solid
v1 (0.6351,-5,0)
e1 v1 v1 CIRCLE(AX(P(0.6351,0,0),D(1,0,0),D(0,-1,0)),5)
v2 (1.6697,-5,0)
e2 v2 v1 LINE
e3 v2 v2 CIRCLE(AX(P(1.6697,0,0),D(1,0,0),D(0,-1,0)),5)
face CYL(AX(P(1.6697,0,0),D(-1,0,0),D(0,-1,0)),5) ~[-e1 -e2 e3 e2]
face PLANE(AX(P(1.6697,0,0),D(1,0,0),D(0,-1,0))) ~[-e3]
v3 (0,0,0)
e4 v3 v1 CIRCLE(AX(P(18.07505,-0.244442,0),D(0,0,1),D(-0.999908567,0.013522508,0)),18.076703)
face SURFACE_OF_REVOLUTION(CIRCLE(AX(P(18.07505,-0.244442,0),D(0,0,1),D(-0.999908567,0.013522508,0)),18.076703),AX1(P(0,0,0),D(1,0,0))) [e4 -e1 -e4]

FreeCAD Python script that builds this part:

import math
import FreeCAD as App
import Part
import Sketcher

doc = App.newDocument("Part")
body = doc.addObject("PartDesign::Body", "Body")

sketch1 = doc.addObject("Sketcher::SketchObject", "Sketch")
body.addObject(sketch1)
sketch1.AttachmentSupport = (doc.XY_Plane, [""])
sketch1.MapMode = "FlatFace"
sketch1.addGeometry([
    Part.LineSegment(App.Vector(1.7, 0, 0), App.Vector(0, 0, 0)),
    Part.ArcOfCircle(Part.Circle(App.Vector(18.1, -0.2, 0), App.Vector(0, 0, 1), 18.1), math.radians(179.23), math.radians(195.25)),
    Part.LineSegment(App.Vector(0.6, -5, 0), App.Vector(1.7, -5, 0)),
    Part.LineSegment(App.Vector(1.7, -5, 0), App.Vector(1.7, 0, 0)),
], False)
sketch1.addConstraint([
    Sketcher.Constraint("Coincident", 0, 2, 1, 1),
    Sketcher.Constraint("Coincident", 1, 2, 2, 1),
    Sketcher.Constraint("Coincident", 2, 2, 3, 1),
    Sketcher.Constraint("Coincident", 3, 2, 0, 1),
    Sketcher.Constraint("Horizontal", 0),
    Sketcher.Constraint("Horizontal", 2),
    Sketcher.Constraint("Vertical", 3),
    Sketcher.Constraint("Coincident", 0, 2, -1, 1),
    Sketcher.Constraint("DistanceY", 3, 1, 3, 2, 5.0),
    Sketcher.Constraint("Radius", 1, 18.0775),
    Sketcher.Constraint("DistanceX", 0, 2, 0, 1, 1.6697),
    Sketcher.Constraint("DistanceX", 2, 1, 2, 2, 1.0346),
])
revolution = doc.addObject("PartDesign::Revolution", "Revolution")
body.addObject(revolution)
revolution.Profile = sketch1
revolution.ReferenceAxis = (sketch1, ["H_Axis"])
revolution.Angle = 360

doc.recompute()
